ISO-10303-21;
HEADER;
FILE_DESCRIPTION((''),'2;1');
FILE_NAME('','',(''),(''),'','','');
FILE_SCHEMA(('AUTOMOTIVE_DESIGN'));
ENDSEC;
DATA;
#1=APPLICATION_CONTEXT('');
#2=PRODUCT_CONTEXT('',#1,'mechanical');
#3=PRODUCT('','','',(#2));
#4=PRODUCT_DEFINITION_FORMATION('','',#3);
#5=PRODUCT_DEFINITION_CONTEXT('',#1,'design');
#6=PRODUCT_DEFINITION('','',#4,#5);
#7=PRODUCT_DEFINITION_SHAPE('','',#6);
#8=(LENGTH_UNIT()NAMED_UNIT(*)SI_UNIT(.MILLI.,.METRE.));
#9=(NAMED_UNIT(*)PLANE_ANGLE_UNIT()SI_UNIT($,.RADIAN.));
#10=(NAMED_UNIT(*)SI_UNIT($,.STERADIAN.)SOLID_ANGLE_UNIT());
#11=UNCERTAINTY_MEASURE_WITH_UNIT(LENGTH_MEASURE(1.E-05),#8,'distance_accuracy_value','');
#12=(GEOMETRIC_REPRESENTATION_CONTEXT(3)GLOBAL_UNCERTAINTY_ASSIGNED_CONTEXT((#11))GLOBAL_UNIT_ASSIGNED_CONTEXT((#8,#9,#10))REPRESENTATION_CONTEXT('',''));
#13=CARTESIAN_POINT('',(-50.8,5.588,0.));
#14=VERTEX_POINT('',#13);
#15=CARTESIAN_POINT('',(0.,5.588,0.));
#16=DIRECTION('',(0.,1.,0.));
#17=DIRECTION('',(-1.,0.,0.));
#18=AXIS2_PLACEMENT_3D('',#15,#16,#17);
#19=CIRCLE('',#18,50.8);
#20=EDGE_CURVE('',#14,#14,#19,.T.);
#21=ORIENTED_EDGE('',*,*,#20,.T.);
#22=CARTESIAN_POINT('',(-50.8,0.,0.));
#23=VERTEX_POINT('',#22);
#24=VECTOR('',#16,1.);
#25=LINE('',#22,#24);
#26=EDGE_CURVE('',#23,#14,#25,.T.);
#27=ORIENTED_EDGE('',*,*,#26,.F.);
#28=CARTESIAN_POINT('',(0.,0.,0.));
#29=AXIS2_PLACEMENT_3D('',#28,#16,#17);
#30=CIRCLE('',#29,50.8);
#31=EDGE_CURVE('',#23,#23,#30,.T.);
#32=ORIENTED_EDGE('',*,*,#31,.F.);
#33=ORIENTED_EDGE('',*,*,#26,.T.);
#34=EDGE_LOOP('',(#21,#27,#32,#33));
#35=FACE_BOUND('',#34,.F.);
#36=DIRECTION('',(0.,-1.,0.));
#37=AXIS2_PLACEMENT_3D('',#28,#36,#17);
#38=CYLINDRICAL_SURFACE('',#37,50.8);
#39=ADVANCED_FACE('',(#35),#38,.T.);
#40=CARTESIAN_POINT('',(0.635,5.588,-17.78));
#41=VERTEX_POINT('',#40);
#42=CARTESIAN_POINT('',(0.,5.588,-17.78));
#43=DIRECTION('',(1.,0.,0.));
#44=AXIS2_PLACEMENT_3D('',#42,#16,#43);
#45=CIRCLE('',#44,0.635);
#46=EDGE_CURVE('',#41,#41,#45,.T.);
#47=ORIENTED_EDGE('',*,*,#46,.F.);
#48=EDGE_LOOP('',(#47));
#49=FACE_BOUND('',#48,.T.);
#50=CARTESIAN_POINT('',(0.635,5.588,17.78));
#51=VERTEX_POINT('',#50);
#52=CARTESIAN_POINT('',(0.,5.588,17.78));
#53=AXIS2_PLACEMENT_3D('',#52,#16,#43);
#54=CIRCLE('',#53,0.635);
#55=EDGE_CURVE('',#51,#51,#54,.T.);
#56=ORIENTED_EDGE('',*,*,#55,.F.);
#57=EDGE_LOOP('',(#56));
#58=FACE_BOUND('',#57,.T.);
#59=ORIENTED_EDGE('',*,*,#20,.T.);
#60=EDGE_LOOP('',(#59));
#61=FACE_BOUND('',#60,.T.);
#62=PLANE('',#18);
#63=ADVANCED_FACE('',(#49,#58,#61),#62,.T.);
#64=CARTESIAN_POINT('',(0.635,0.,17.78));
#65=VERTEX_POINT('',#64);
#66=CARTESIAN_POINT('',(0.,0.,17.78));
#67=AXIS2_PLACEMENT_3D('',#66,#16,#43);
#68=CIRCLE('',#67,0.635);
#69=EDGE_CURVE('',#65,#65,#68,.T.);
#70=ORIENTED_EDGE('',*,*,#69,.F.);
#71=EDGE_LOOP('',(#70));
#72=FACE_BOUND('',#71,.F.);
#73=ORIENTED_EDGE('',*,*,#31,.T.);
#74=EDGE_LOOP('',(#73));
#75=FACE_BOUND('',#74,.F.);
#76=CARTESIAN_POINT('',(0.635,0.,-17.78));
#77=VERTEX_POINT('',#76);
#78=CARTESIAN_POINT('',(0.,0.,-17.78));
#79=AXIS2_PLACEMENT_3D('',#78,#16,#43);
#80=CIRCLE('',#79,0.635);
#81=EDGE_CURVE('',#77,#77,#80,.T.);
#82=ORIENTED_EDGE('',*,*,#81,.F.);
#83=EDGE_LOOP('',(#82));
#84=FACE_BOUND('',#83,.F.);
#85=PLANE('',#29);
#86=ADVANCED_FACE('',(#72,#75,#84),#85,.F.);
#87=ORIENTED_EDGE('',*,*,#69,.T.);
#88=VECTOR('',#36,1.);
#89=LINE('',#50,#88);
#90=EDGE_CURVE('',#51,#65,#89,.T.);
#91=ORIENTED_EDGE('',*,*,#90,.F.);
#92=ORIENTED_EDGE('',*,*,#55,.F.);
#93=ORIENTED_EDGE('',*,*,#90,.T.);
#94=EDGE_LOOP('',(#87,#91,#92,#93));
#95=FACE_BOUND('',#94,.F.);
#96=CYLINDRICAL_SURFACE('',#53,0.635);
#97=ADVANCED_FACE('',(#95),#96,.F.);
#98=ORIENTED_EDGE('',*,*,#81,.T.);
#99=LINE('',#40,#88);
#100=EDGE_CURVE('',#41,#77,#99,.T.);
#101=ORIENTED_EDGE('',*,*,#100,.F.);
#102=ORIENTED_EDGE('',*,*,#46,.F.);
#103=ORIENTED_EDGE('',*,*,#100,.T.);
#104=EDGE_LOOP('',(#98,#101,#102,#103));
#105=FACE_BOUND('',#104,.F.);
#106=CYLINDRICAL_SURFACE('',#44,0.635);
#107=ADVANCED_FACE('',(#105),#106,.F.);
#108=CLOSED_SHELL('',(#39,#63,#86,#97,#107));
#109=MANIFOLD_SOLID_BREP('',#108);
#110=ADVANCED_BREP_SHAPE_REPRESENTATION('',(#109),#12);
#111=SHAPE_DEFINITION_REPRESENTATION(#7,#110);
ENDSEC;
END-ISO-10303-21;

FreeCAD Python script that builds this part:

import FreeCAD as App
import Part
import Sketcher

V = App.Vector
Q = App.Units.Quantity

doc = App.newDocument("Part")
body = doc.addObject("PartDesign::Body", "Body")

# Sketch on XZ plane
sketch1 = body.newObject("Sketcher::SketchObject", "Sketch")
sketch1.AttachmentSupport = (doc.getObject("XZ_Plane"), [""])
sketch1.MapMode = "FlatFace"
sketch1.addGeometry(Part.Circle(V(0, 0, 0), V(0, 0, 1), 51), False)
sketch1.addConstraint(Sketcher.Constraint("Coincident", 0, 3, -1, 1))
sketch1.addConstraint(Sketcher.Constraint("Diameter", 0, Q("4 in")))
pad1 = body.newObject("PartDesign::Pad", "Pad")
pad1.Profile = sketch1
pad1.Length = Q("0.22 in")
pad1.Reversed = True

# Sketch on XZ plane
sketch2 = body.newObject("Sketcher::SketchObject", "Sketch001")
sketch2.AttachmentSupport = (doc.getObject("XZ_Plane"), [""])
sketch2.MapMode = "FlatFace"
sketch2.AttachmentOffset = App.Placement(V(0, 0, -0.22 * 25.4), App.Rotation())
sketch2.addGeometry(Part.Circle(V(0, -17.8, 0), V(0, 0, 1), 0.6), False)
sketch2.addConstraint(Sketcher.Constraint("PointOnObject", 0, 3, -2))
sketch2.addConstraint(Sketcher.Constraint("Diameter", 0, Q("0.05 in")))
sketch2.addConstraint(Sketcher.Constraint("DistanceY", 0, 3, -1, 1, Q("0.7 in")))
pocket1 = body.newObject("PartDesign::Pocket", "Pocket")
pocket1.Profile = sketch2
pocket1.Length = Q("0.22 in")
pocket1.Reversed = True

# Sketch on XZ plane
sketch3 = body.newObject("Sketcher::SketchObject", "Sketch002")
sketch3.AttachmentSupport = (doc.getObject("XZ_Plane"), [""])
sketch3.MapMode = "FlatFace"
sketch3.AttachmentOffset = App.Placement(V(0, 0, -0.22 * 25.4), App.Rotation())
sketch3.addGeometry(Part.Circle(V(0, 17.8, 0), V(0, 0, 1), 0.6), False)
sketch3.addConstraint(Sketcher.Constraint("PointOnObject", 0, 3, -2))
sketch3.addConstraint(Sketcher.Constraint("Diameter", 0, Q("0.05 in")))
sketch3.addConstraint(Sketcher.Constraint("DistanceY", -1, 1, 0, 3, Q("0.7 in")))
pocket2 = body.newObject("PartDesign::Pocket", "Pocket001")
pocket2.Profile = sketch3
pocket2.Length = Q("0.22 in")
pocket2.Reversed = True

doc.recompute()
